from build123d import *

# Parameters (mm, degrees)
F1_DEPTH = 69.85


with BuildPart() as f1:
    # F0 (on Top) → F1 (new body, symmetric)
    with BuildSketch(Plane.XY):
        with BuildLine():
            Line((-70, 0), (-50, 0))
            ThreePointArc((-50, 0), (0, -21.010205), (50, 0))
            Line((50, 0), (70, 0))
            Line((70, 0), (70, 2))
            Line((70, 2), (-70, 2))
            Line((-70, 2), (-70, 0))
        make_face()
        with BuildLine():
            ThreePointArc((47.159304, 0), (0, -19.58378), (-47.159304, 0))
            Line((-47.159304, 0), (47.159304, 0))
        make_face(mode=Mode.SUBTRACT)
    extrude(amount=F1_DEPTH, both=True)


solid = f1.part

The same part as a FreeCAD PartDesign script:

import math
import FreeCAD as App
import Part
import Sketcher

doc = App.newDocument("Part")
params = doc.addObject("Spreadsheet::Sheet", "Params")
for row, (alias, value) in enumerate([
    ("sketch1_radius", "70 mm"),
    ("sketch1_width", "20 mm"),
    ("sketch1_width2", "140 mm"),
    ("sketch1_height", "2 mm"),
    ("pad1_length", "139.7 mm"),
], start=1):
    params.set(f"A{row}", alias)
    params.set(f"B{row}", "=" + value)
    params.setAlias(f"B{row}", alias)

body = doc.addObject("PartDesign::Body", "Body")

# Sketch on XY plane
sketch1 = body.newObject("Sketcher::SketchObject", "Sketch")
sketch1.AttachmentSupport = (doc.getObject("XY_Plane"), [""])
sketch1.MapMode = "FlatFace"
sketch1.addGeometry([
    Part.LineSegment(App.Vector(-70, 0, 0), App.Vector(-50, 0, 0)),  # 0
    Part.ArcOfCircle(Part.Circle(App.Vector(0, 48.989795, 0), App.Vector(0, 0, 1), 70), math.radians(-135.584691), math.radians(-44.415309)),  # 1
    Part.LineSegment(App.Vector(50, 0, 0), App.Vector(70, 0, 0)),  # 2
    Part.LineSegment(App.Vector(70, 0, 0), App.Vector(70, 2, 0)),  # 3
    Part.LineSegment(App.Vector(70, 2, 0), App.Vector(-70, 2, 0)),  # 4
    Part.LineSegment(App.Vector(-70, 2, 0), App.Vector(-70, 0, 0)),  # 5
    Part.LineSegment(App.Vector(-47.159304, 0, 0), App.Vector(47.159304, 0, 0)),  # 6
    Part.ArcOfCircle(Part.Circle(App.Vector(0, 46.989792, 0), App.Vector(0, 0, 1), 66.573572), math.radians(-135.103159), math.radians(-44.896841)),  # 7
], False)
sketch1.addConstraint([
    Sketcher.Constraint("Coincident", 0, 2, 1, 1),
    Sketcher.Constraint("Coincident", 1, 2, 2, 1),
    Sketcher.Constraint("Coincident", 2, 2, 3, 1),
    Sketcher.Constraint("Coincident", 3, 2, 4, 1),
    Sketcher.Constraint("Coincident", 4, 2, 5, 1),
    Sketcher.Constraint("Coincident", 5, 2, 0, 1),
    Sketcher.Constraint("Coincident", 6, 1, 7, 1),
    Sketcher.Constraint("Coincident", 7, 2, 6, 2),
    Sketcher.Constraint("Horizontal", 0),
    Sketcher.Constraint("Horizontal", 2),
    Sketcher.Constraint("Vertical", 3),
    Sketcher.Constraint("Horizontal", 4),
    Sketcher.Constraint("Vertical", 5),
    Sketcher.Constraint("Horizontal", 6),
    Sketcher.Constraint("Symmetric", 0, 2, 1, 2, -1, 1),
    Sketcher.Constraint("Symmetric", 6, 1, 7, 2, -1, 1),
    Sketcher.Constraint("Symmetric", 2, 2, 5, 2, -2),
    Sketcher.Constraint("Radius", 1, 70.0),
    Sketcher.Constraint("DistanceX", 0, 1, 0, 2, 20.0),
    Sketcher.Constraint("DistanceX", 4, 2, 4, 1, 140.0),
    Sketcher.Constraint("DistanceY", 3, 1, 3, 2, 2.0),
    Sketcher.Constraint("Radius", 7, 66.573572),
    Sketcher.Constraint("DistanceX", 6, 1, 6, 2, 94.318608),
])
sketch1.setExpression("Constraints[17]", "Params.sketch1_radius")
sketch1.setExpression("Constraints[18]", "Params.sketch1_width")
sketch1.setExpression("Constraints[19]", "Params.sketch1_width2")
sketch1.setExpression("Constraints[20]", "Params.sketch1_height")
pad1 = body.newObject("PartDesign::Pad", "Pad")
pad1.Profile = sketch1
pad1.setExpression("Length", "Params.pad1_length")
pad1.Midplane = True

doc.recompute()
